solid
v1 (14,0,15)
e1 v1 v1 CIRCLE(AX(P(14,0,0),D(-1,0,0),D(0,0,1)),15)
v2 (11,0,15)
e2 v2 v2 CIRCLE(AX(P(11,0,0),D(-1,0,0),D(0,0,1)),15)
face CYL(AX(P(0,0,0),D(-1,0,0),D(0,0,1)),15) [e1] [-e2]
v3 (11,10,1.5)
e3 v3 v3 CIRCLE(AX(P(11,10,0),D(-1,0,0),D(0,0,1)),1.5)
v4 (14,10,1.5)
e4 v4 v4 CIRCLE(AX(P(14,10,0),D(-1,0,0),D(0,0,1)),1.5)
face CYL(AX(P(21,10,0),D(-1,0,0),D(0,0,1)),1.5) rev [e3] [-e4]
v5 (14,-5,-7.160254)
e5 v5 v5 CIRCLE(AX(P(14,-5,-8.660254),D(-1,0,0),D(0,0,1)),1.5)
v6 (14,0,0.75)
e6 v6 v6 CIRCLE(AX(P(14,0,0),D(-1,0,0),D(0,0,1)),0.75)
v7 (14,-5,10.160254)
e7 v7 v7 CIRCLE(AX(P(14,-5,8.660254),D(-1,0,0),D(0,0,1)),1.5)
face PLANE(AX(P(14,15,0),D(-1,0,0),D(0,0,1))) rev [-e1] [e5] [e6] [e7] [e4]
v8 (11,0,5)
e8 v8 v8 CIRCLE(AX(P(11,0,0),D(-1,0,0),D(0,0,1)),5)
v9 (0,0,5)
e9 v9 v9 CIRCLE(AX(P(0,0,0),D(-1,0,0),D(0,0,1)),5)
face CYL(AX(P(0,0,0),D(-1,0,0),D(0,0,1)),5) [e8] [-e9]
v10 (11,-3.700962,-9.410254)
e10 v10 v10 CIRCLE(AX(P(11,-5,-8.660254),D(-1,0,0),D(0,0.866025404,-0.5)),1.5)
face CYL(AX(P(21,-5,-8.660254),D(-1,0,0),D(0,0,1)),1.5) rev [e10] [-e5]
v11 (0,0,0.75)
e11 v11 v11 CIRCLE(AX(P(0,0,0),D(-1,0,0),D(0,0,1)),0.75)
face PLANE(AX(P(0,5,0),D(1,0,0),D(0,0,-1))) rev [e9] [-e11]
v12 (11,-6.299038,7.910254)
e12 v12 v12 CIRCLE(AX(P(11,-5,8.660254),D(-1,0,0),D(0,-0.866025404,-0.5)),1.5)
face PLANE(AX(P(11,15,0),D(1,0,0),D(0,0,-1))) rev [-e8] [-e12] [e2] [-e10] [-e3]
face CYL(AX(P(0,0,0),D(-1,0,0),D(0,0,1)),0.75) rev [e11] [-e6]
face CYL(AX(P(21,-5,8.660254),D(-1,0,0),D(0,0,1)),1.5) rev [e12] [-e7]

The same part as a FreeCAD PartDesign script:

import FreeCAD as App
import Part
import Sketcher
Q = App.Units.Quantity


def add_polygon(sketch, points):
    """Adds a closed chain of lines whose ends are joined by coincident constraints."""
    first, n = sketch.GeometryCount, len(points)
    for a, b in zip(points, points[1:] + points[:1]):
        sketch.addGeometry(Part.LineSegment(App.Vector(*a, 0), App.Vector(*b, 0)), False)
    for i in range(n):
        sketch.addConstraint(Sketcher.Constraint("Coincident", first + i, 2, first + (i + 1) % n, 1))

doc = App.newDocument("Part")
body = doc.addObject("PartDesign::Body", "Body")

sketch1 = body.newObject("Sketcher::SketchObject", "Sketch")
sketch1.AttachmentSupport = (doc.getObject("XY_Plane"), [""])
sketch1.MapMode = "FlatFace"
add_polygon(sketch1, [(14, 15), (11, 15), (11, 5), (0, 5), (0, 0.8), (14, 0.8)])
sketch1.addConstraint([
    Sketcher.Constraint("Horizontal", 0),
    Sketcher.Constraint("Vertical", 1),
    Sketcher.Constraint("Horizontal", 2),
    Sketcher.Constraint("Vertical", 3),
    Sketcher.Constraint("Horizontal", 4),
    Sketcher.Constraint("Vertical", 5),
    Sketcher.Constraint("PointOnObject", 2, 2, -2),
    Sketcher.Constraint("DistanceX", 0, 2, 0, 1, Q("3 mm")),
    Sketcher.Constraint("DistanceX", 2, 2, 2, 1, Q("11 mm")),
    Sketcher.Constraint("DistanceY", 1, 2, 1, 1, Q("10 mm")),
    Sketcher.Constraint("DistanceY", -1, 1, 0, 2, Q("15 mm")),
    Sketcher.Constraint("DistanceY", 3, 2, 3, 1, Q("4.25 mm")),
])
revolution = body.newObject("PartDesign::Revolution", "Revolution")
revolution.Profile = sketch1
revolution.ReferenceAxis = (sketch1, ["H_Axis"])
revolution.Angle = 360

sketch2 = body.newObject("Sketcher::SketchObject", "Sketch001")
sketch2.AttachmentSupport = (doc.getObject("YZ_Plane"), [""])
sketch2.MapMode = "FlatFace"
sketch2.AttachmentOffset = App.Placement(App.Vector(0, 0, 11), App.Rotation())
sketch2.addGeometry(Part.Circle(App.Vector(10, 0, 0), App.Vector(0, 0, 1), 1.5), False)
sketch2.addConstraint([
    Sketcher.Constraint("PointOnObject", 0, 3, -1),
    Sketcher.Constraint("Diameter", 0, Q("3 mm")),
    Sketcher.Constraint("DistanceX", -1, 1, 0, 3, Q("10 mm")),
])
pocket1 = body.newObject("PartDesign::Pocket", "Pocket")
pocket1.Profile = sketch2
pocket1.Length = 10
pocket1.Reversed = True
doc.recompute()

polarpattern = body.newObject("PartDesign::PolarPattern", "PolarPattern")
polarpattern.Originals = [pocket1]
polarpattern.Axis = (doc.getObject("X_Axis"), [""])
polarpattern.Angle = 360
polarpattern.Occurrences = 3
body.Tip = polarpattern

doc.recompute()
